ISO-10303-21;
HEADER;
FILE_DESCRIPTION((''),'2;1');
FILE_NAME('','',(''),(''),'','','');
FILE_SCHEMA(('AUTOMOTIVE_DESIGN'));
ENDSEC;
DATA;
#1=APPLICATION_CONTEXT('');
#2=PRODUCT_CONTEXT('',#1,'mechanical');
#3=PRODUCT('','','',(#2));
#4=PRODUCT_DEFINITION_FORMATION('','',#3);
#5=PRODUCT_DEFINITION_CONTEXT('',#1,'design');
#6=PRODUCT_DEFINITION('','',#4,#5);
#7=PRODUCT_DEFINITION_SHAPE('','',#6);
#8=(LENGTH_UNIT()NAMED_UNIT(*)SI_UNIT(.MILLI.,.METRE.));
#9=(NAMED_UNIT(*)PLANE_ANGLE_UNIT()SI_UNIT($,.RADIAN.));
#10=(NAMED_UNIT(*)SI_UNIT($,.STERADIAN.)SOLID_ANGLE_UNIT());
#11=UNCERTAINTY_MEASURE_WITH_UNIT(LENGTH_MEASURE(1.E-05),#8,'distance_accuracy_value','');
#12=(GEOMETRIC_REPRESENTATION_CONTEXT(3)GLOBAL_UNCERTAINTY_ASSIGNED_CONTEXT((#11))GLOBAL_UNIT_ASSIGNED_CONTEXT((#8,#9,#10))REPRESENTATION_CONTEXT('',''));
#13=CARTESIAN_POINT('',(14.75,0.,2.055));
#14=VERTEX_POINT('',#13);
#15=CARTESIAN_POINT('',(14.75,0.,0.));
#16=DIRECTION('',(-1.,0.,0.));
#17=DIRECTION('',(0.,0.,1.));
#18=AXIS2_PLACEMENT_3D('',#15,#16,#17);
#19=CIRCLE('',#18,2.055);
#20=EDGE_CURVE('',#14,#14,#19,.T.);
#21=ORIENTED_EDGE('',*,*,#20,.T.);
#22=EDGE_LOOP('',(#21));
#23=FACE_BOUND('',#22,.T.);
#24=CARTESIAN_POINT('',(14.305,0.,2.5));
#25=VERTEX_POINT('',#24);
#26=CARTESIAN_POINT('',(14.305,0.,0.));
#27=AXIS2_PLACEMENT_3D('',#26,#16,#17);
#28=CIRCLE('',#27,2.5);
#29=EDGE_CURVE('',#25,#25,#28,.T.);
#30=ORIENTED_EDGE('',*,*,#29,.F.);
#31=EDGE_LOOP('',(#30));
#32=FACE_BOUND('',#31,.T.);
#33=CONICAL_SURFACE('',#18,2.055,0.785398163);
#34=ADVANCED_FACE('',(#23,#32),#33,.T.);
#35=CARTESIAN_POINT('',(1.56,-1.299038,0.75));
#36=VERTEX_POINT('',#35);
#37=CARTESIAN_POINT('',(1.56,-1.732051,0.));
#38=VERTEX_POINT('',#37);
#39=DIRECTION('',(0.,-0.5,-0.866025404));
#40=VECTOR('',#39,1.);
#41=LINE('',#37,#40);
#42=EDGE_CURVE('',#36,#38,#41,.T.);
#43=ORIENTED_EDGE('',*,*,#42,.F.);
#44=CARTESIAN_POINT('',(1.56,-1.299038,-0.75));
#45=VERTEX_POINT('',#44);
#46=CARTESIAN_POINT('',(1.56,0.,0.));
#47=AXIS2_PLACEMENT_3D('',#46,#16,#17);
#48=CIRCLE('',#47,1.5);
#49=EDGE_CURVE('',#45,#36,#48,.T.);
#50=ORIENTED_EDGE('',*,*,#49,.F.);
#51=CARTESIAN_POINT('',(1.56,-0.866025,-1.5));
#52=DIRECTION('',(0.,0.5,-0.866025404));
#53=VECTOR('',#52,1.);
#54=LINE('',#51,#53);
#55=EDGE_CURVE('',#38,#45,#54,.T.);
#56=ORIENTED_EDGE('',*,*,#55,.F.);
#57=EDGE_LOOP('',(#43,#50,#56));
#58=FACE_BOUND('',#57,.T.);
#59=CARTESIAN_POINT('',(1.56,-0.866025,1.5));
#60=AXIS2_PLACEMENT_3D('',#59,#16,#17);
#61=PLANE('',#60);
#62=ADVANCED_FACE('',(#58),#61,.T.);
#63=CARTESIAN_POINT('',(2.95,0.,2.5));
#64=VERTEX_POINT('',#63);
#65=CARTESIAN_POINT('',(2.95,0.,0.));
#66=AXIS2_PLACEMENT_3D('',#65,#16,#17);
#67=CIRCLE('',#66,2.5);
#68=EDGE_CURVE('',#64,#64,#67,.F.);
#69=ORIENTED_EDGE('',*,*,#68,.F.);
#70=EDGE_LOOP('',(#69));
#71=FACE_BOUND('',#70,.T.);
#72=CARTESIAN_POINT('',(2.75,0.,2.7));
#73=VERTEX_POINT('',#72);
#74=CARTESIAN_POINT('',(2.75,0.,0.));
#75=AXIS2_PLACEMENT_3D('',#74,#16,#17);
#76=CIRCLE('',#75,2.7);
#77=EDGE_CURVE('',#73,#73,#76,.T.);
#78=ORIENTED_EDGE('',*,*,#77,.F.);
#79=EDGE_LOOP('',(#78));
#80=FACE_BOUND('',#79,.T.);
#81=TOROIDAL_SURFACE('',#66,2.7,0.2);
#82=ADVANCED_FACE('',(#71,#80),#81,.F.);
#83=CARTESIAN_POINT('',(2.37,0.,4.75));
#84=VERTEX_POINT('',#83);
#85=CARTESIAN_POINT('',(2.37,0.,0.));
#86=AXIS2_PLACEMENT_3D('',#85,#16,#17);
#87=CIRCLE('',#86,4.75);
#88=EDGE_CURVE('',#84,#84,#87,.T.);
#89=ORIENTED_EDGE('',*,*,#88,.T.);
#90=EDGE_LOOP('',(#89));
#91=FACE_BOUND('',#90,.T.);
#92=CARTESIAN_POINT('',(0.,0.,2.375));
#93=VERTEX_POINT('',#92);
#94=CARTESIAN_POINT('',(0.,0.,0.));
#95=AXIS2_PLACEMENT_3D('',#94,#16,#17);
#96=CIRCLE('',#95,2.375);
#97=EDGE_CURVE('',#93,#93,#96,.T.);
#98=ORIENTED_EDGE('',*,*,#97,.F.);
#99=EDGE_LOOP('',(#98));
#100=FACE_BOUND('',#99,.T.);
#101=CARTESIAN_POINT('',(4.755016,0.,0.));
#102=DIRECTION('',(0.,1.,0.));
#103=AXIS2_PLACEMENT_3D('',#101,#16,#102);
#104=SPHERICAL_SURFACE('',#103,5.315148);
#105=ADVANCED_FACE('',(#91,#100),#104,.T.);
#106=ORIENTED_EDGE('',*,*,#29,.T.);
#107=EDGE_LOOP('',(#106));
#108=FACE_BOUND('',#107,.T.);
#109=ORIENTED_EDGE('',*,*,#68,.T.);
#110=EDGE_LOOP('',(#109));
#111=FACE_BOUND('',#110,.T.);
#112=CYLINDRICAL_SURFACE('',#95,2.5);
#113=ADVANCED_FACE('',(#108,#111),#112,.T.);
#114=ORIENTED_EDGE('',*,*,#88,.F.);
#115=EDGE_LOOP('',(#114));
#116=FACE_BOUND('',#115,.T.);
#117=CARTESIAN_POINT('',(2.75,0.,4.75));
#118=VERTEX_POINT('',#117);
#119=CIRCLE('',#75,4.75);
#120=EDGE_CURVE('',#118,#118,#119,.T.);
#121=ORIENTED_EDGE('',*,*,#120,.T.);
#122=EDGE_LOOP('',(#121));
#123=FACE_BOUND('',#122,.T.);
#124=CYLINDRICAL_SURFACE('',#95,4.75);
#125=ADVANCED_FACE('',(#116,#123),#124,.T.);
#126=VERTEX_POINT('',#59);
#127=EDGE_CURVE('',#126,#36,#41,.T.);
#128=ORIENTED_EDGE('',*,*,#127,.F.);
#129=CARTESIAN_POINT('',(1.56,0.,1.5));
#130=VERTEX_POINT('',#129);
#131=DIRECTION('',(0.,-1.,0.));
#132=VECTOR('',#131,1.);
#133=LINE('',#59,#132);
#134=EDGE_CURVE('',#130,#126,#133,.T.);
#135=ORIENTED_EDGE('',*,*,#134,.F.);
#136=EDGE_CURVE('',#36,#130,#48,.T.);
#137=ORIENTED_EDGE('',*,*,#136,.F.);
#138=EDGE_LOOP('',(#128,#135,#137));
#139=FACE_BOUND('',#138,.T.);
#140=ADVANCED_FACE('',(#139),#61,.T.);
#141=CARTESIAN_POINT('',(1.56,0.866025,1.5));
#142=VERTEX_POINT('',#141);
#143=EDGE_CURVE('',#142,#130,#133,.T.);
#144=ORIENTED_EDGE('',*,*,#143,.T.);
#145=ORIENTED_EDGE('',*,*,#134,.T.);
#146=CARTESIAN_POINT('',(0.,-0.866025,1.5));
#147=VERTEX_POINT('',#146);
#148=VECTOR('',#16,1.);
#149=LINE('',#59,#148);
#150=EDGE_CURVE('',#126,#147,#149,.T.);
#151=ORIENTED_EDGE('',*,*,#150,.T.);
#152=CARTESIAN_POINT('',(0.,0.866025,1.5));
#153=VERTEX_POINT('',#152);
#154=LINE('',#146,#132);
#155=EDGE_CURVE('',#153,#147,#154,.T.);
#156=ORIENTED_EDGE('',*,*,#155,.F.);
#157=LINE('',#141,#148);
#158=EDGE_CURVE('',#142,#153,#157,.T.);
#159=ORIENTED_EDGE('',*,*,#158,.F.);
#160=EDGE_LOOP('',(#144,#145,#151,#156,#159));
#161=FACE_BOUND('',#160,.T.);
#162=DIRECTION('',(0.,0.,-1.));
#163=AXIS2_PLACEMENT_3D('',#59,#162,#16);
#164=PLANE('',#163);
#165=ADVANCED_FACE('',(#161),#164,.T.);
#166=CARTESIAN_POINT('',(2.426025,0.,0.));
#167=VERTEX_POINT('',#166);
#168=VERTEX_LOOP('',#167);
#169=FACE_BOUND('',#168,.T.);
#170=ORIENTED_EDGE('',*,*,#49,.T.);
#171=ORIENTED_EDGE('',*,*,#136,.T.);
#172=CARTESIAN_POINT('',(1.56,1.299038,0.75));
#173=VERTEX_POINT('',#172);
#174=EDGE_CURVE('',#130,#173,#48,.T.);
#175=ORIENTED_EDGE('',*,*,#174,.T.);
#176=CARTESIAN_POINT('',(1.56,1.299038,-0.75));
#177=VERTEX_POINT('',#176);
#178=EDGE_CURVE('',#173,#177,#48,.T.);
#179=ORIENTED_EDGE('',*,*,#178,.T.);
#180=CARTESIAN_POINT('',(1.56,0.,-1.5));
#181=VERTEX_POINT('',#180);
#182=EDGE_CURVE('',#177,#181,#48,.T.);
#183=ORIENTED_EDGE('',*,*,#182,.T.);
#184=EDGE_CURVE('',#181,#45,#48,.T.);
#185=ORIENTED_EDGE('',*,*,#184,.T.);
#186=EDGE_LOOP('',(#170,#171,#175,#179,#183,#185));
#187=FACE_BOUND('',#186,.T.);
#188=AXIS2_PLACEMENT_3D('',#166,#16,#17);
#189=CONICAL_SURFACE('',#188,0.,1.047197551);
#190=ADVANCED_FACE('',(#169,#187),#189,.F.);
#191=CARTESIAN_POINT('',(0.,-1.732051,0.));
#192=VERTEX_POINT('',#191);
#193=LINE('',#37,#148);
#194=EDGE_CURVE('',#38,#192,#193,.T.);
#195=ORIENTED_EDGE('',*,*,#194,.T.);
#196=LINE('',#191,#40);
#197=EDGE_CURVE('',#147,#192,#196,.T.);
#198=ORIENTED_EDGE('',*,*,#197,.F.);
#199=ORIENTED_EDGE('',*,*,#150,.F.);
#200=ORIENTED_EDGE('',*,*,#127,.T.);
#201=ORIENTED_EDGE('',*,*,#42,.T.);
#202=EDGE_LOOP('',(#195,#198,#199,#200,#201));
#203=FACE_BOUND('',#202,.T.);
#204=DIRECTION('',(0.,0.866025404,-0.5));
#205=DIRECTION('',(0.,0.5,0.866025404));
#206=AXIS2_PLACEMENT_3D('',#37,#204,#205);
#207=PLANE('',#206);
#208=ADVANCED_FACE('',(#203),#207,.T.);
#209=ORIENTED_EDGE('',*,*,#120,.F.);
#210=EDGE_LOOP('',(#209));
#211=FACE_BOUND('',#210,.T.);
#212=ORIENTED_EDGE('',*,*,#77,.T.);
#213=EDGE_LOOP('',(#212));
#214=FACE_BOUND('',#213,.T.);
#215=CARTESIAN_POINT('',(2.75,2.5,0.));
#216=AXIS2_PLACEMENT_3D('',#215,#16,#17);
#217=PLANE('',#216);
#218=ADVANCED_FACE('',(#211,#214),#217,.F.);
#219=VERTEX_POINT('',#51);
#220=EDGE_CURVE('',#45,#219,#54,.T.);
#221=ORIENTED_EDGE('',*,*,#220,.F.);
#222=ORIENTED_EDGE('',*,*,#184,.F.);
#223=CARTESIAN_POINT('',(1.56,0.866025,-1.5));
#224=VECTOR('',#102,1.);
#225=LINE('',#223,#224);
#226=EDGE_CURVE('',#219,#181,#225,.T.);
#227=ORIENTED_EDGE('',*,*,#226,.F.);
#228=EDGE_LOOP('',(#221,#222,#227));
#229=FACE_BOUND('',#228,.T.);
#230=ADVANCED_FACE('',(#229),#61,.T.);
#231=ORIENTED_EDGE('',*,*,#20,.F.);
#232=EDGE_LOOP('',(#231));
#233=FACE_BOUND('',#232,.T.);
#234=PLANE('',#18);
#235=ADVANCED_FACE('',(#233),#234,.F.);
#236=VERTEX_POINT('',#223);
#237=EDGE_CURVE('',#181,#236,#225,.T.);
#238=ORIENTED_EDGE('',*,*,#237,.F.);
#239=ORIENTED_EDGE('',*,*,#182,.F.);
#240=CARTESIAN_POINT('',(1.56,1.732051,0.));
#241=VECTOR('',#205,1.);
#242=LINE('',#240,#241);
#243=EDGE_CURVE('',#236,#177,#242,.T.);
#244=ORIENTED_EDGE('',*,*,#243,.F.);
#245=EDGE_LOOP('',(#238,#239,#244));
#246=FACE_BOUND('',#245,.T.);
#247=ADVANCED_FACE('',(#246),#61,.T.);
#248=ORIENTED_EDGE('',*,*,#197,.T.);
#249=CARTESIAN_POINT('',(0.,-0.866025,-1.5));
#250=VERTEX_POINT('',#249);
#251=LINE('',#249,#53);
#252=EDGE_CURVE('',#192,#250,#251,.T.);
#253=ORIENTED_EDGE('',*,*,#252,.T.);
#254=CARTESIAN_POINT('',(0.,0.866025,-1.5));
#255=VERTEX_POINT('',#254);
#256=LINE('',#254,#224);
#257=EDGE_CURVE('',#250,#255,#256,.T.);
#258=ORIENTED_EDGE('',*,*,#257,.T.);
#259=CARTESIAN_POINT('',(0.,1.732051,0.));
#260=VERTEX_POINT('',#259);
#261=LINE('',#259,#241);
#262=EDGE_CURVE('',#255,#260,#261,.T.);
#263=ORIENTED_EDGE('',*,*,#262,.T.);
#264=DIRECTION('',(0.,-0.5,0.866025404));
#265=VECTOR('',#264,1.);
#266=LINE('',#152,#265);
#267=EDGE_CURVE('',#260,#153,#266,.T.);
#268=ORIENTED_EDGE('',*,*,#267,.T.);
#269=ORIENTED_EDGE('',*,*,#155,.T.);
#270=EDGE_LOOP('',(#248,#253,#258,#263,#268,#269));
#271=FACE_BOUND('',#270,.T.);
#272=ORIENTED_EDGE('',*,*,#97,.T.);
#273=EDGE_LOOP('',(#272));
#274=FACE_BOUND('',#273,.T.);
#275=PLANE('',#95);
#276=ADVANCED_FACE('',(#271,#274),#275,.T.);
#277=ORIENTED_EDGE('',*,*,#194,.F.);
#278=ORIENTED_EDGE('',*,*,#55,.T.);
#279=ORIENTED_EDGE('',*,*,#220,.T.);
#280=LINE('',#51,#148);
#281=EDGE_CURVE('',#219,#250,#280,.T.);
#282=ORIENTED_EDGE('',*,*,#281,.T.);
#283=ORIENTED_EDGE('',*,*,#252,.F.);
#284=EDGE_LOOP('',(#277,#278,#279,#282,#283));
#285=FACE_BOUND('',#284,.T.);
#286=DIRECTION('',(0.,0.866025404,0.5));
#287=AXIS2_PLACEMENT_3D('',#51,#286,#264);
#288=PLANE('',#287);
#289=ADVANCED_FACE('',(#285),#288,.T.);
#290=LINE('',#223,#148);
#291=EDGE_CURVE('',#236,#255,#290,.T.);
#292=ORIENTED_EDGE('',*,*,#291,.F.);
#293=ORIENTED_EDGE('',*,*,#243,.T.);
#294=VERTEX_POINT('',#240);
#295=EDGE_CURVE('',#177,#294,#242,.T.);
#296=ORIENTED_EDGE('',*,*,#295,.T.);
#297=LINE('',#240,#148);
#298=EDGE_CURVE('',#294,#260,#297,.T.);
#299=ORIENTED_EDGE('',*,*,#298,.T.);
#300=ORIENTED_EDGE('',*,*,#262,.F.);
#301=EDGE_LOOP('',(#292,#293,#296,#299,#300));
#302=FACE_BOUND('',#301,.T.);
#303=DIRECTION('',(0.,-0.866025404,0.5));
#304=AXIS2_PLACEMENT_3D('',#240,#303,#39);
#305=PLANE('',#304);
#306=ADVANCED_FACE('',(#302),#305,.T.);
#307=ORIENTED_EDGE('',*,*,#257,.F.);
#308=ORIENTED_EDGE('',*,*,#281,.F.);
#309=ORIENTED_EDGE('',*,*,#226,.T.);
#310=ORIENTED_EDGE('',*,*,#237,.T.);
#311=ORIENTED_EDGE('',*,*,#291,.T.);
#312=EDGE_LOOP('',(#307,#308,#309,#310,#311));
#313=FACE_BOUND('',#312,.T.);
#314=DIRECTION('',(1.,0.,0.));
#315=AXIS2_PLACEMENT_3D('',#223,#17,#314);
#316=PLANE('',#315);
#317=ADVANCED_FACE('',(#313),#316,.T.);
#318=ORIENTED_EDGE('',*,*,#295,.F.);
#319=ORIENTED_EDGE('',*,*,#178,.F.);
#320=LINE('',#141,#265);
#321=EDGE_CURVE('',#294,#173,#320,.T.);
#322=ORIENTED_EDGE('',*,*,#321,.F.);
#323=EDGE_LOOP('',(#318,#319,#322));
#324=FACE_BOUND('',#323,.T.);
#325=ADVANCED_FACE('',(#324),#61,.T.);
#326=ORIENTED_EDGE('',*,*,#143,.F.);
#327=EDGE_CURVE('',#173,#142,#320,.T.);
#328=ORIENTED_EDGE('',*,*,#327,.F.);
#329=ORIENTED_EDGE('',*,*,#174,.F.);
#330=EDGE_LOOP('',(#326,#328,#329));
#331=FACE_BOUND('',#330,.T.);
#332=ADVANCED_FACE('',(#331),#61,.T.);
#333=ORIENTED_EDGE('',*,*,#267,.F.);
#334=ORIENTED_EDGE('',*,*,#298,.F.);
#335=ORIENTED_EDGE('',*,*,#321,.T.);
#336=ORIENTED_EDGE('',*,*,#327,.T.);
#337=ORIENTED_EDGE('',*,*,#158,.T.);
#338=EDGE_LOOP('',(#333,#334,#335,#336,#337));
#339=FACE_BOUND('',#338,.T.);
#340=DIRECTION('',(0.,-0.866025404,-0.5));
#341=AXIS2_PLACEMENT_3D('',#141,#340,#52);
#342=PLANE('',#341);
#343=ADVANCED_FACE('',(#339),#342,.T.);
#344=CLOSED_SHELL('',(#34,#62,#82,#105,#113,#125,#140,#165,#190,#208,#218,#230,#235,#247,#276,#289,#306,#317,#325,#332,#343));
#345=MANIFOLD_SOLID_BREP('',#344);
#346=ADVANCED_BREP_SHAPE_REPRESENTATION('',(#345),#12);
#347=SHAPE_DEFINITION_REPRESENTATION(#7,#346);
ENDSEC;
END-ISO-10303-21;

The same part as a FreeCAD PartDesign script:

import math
import FreeCAD as App
import Part
import Sketcher

V = App.Vector
Q = App.Units.Quantity


def edges_at(feature, points):
    """Names of the edges that pass closest to the given points."""
    edges = feature.Shape.Edges
    near = lambda p: min(range(len(edges)), key=lambda i: edges[i].distToShape(Part.Vertex(*p))[0])
    return sorted({f"Edge{near(p) + 1}" for p in points})

doc = App.newDocument("Part")
params = doc.addObject("Spreadsheet::Sheet", "Params")
for row, (alias, value) in enumerate([
    ("sketch1_width", "0.38 mm"),
    ("sketch1_width2", "14.75 mm"),
    ("sketch1_height", "2.25 mm"),
    ("revolution_angle", "360 deg"),
    ("fillet_radius", "0.2 mm"),
    ("sketch2_height", "1.5 mm"),
    ("sketch2_width", "1.56 mm"),
    ("groove_angle", "360 deg"),
    ("pocket1_length", "1.56 mm"),
], start=1):
    params.set(f"A{row}", alias)
    params.set(f"B{row}", "=" + value)
    params.setAlias(f"B{row}", alias)

body = doc.addObject("PartDesign::Body", "Body")

sketch1 = body.newObject("Sketcher::SketchObject", "Sketch")
sketch1.AttachmentSupport = (doc.getObject("XY_Plane"), [""])
sketch1.MapMode = "FlatFace"
sketch1.addGeometry(Part.LineSegment(V(14.75, 0, 0), V(14.75, 2.06, 0)), False)
sketch1.addGeometry(Part.LineSegment(V(14.75, 2.06, 0), V(14.3, 2.5, 0)), False)
sketch1.addGeometry(Part.LineSegment(V(14.3, 2.5, 0), V(2.75, 2.5, 0)), False)
sketch1.addGeometry(Part.LineSegment(V(2.75, 2.5, 0), V(2.75, 4.75, 0)), False)
sketch1.addGeometry(Part.LineSegment(V(2.75, 4.75, 0), V(2.37, 4.75, 0)), False)
sketch1.addGeometry(Part.ArcOfCircle(Part.Circle(V(4.76, 0, 0), V(0, 0, 1), 5.32), math.radians(117), math.radians(153)), False)
sketch1.addGeometry(Part.LineSegment(V(0, 2.38, 0), V(0, 0, 0)), False)
sketch1.addGeometry(Part.LineSegment(V(0, 0, 0), V(14.75, 0, 0)), False)
sketch1.addConstraint(Sketcher.Constraint("Coincident", 0, 2, 1, 1))
sketch1.addConstraint(Sketcher.Constraint("Coincident", 1, 2, 2, 1))
sketch1.addConstraint(Sketcher.Constraint("Coincident", 2, 2, 3, 1))
sketch1.addConstraint(Sketcher.Constraint("Coincident", 3, 2, 4, 1))
sketch1.addConstraint(Sketcher.Constraint("Coincident", 4, 2, 5, 1))
sketch1.addConstraint(Sketcher.Constraint("Coincident", 5, 2, 6, 1))
sketch1.addConstraint(Sketcher.Constraint("Coincident", 6, 2, 7, 1))
sketch1.addConstraint(Sketcher.Constraint("Coincident", 7, 2, 0, 1))
sketch1.addConstraint(Sketcher.Constraint("Vertical", 0))
sketch1.addConstraint(Sketcher.Constraint("Horizontal", 2))
sketch1.addConstraint(Sketcher.Constraint("Vertical", 3))
sketch1.addConstraint(Sketcher.Constraint("Horizontal", 4))
sketch1.addConstraint(Sketcher.Constraint("Vertical", 6))
sketch1.addConstraint(Sketcher.Constraint("Horizontal", 7))
sketch1.addConstraint(Sketcher.Constraint("Coincident", 6, 2, -1, 1))
sketch1.addConstraint(Sketcher.Constraint("PointOnObject", 5, 3, -1))
sketch1.addConstraint(Sketcher.Constraint("Angle", 1, Q("135 deg")))
sketch1.addConstraint(Sketcher.Constraint("DistanceX", 2, 2, 0, 2, 12.0))
sketch1.addConstraint(Sketcher.Constraint("DistanceX", 4, 2, 4, 1, 0.38))
sketch1.addConstraint(Sketcher.Constraint("DistanceX", 7, 1, 7, 2, 14.75))
sketch1.addConstraint(Sketcher.Constraint("DistanceY", 3, 1, 3, 2, 2.25))
sketch1.addConstraint(Sketcher.Constraint("DistanceY", -1, 1, 1, 2, 2.5))
sketch1.addConstraint(Sketcher.Constraint("DistanceX", 2, 2, 2, 1, 11.555))
sketch1.addConstraint(Sketcher.Constraint("DistanceY", 6, 2, 6, 1, 2.375))
sketch1.setExpression("Constraints[18]", "Params.sketch1_width")
sketch1.setExpression("Constraints[19]", "Params.sketch1_width2")
sketch1.setExpression("Constraints[20]", "Params.sketch1_height")
revolution = body.newObject("PartDesign::Revolution", "Revolution")
revolution.Profile = sketch1
revolution.ReferenceAxis = (sketch1, ["H_Axis"])
revolution.setExpression("Angle", "Params.revolution_angle")
doc.recompute()

fillet = body.newObject("PartDesign::Fillet", "Fillet")
fillet.Base = (revolution, edges_at(revolution, [(2.75, -2.5, 0)]))
fillet.setExpression("Radius", "Params.fillet_radius")

sketch2 = body.newObject("Sketcher::SketchObject", "Sketch001")
sketch2.AttachmentSupport = (doc.getObject("XY_Plane"), [""])
sketch2.MapMode = "FlatFace"
sketch2.addGeometry(Part.LineSegment(V(1.6, 1.5, 0), V(0, 1.5, 0)), False)
sketch2.addGeometry(Part.LineSegment(V(0, 1.5, 0), V(0, 0, 0)), False)
sketch2.addGeometry(Part.LineSegment(V(0, 0, 0), V(2.4, 0, 0)), False)
sketch2.addGeometry(Part.LineSegment(V(2.4, 0, 0), V(1.6, 1.5, 0)), False)
sketch2.addConstraint(Sketcher.Constraint("Coincident", 0, 2, 1, 1))
sketch2.addConstraint(Sketcher.Constraint("Coincident", 1, 2, 2, 1))
sketch2.addConstraint(Sketcher.Constraint("Coincident", 2, 2, 3, 1))
sketch2.addConstraint(Sketcher.Constraint("Coincident", 3, 2, 0, 1))
sketch2.addConstraint(Sketcher.Constraint("Horizontal", 0))
sketch2.addConstraint(Sketcher.Constraint("Vertical", 1))
sketch2.addConstraint(Sketcher.Constraint("Horizontal", 2))
sketch2.addConstraint(Sketcher.Constraint("Coincident", 1, 2, -1, 1))
sketch2.addConstraint(Sketcher.Constraint("Angle", 3, Q("120 deg")))
sketch2.addConstraint(Sketcher.Constraint("DistanceY", 1, 2, 1, 1, 1.5))
sketch2.addConstraint(Sketcher.Constraint("DistanceX", 0, 2, 0, 1, 1.56))
sketch2.setExpression("Constraints[9]", "Params.sketch2_height")
sketch2.setExpression("Constraints[10]", "Params.sketch2_width")
groove = body.newObject("PartDesign::Groove", "Groove")
groove.Profile = sketch2
groove.ReferenceAxis = (sketch2, ["H_Axis"])
groove.setExpression("Angle", "Params.groove_angle")

sketch3 = body.newObject("Sketcher::SketchObject", "Sketch002")
sketch3.AttachmentSupport = (doc.getObject("YZ_Plane"), [""])
sketch3.MapMode = "FlatFace"
sketch3.addGeometry(Part.LineSegment(V(0.9, 1.5, 0), V(-0.9, 1.5, 0)), False)
sketch3.addGeometry(Part.LineSegment(V(-0.9, 1.5, 0), V(-1.7, 0, 0)), False)
sketch3.addGeometry(Part.LineSegment(V(-1.7, 0, 0), V(-0.9, -1.5, 0)), False)
sketch3.addGeometry(Part.LineSegment(V(-0.9, -1.5, 0), V(0.9, -1.5, 0)), False)
sketch3.addGeometry(Part.LineSegment(V(0.9, -1.5, 0), V(1.7, 0, 0)), False)
sketch3.addGeometry(Part.LineSegment(V(1.7, 0, 0), V(0.9, 1.5, 0)), False)
sketch3.addConstraint(Sketcher.Constraint("Coincident", 0, 2, 1, 1))
sketch3.addConstraint(Sketcher.Constraint("Coincident", 1, 2, 2, 1))
sketch3.addConstraint(Sketcher.Constraint("Coincident", 2, 2, 3, 1))
sketch3.addConstraint(Sketcher.Constraint("Coincident", 3, 2, 4, 1))
sketch3.addConstraint(Sketcher.Constraint("Coincident", 4, 2, 5, 1))
sketch3.addConstraint(Sketcher.Constraint("Coincident", 5, 2, 0, 1))
sketch3.addConstraint(Sketcher.Constraint("Horizontal", 0))
sketch3.addConstraint(Sketcher.Constraint("Horizontal", 3))
sketch3.addConstraint(Sketcher.Constraint("Symmetric", 0, 2, 3, 2, -1, 1))
sketch3.addConstraint(Sketcher.Constraint("Symmetric", 1, 2, 4, 2, -1, 1))
sketch3.addConstraint(Sketcher.Constraint("PointOnObject", 1, 2, -1))
sketch3.addConstraint(Sketcher.Constraint("Parallel", 2, 5))
sketch3.addConstraint(Sketcher.Constraint("Vertical", 0, 2, 2, 2))
sketch3.addConstraint(Sketcher.Constraint("Angle", 1, Q("-120 deg")))
sketch3.addConstraint(Sketcher.Constraint("DistanceY", 2, 2, 0, 2, 3.0))
sketch3.addConstraint(Sketcher.Constraint("DistanceX", 0, 2, 0, 1, 1.732051))
pocket1 = body.newObject("PartDesign::Pocket", "Pocket")
pocket1.Profile = sketch3
pocket1.setExpression("Length", "Params.pocket1_length")
pocket1.Reversed = True

doc.recompute()
